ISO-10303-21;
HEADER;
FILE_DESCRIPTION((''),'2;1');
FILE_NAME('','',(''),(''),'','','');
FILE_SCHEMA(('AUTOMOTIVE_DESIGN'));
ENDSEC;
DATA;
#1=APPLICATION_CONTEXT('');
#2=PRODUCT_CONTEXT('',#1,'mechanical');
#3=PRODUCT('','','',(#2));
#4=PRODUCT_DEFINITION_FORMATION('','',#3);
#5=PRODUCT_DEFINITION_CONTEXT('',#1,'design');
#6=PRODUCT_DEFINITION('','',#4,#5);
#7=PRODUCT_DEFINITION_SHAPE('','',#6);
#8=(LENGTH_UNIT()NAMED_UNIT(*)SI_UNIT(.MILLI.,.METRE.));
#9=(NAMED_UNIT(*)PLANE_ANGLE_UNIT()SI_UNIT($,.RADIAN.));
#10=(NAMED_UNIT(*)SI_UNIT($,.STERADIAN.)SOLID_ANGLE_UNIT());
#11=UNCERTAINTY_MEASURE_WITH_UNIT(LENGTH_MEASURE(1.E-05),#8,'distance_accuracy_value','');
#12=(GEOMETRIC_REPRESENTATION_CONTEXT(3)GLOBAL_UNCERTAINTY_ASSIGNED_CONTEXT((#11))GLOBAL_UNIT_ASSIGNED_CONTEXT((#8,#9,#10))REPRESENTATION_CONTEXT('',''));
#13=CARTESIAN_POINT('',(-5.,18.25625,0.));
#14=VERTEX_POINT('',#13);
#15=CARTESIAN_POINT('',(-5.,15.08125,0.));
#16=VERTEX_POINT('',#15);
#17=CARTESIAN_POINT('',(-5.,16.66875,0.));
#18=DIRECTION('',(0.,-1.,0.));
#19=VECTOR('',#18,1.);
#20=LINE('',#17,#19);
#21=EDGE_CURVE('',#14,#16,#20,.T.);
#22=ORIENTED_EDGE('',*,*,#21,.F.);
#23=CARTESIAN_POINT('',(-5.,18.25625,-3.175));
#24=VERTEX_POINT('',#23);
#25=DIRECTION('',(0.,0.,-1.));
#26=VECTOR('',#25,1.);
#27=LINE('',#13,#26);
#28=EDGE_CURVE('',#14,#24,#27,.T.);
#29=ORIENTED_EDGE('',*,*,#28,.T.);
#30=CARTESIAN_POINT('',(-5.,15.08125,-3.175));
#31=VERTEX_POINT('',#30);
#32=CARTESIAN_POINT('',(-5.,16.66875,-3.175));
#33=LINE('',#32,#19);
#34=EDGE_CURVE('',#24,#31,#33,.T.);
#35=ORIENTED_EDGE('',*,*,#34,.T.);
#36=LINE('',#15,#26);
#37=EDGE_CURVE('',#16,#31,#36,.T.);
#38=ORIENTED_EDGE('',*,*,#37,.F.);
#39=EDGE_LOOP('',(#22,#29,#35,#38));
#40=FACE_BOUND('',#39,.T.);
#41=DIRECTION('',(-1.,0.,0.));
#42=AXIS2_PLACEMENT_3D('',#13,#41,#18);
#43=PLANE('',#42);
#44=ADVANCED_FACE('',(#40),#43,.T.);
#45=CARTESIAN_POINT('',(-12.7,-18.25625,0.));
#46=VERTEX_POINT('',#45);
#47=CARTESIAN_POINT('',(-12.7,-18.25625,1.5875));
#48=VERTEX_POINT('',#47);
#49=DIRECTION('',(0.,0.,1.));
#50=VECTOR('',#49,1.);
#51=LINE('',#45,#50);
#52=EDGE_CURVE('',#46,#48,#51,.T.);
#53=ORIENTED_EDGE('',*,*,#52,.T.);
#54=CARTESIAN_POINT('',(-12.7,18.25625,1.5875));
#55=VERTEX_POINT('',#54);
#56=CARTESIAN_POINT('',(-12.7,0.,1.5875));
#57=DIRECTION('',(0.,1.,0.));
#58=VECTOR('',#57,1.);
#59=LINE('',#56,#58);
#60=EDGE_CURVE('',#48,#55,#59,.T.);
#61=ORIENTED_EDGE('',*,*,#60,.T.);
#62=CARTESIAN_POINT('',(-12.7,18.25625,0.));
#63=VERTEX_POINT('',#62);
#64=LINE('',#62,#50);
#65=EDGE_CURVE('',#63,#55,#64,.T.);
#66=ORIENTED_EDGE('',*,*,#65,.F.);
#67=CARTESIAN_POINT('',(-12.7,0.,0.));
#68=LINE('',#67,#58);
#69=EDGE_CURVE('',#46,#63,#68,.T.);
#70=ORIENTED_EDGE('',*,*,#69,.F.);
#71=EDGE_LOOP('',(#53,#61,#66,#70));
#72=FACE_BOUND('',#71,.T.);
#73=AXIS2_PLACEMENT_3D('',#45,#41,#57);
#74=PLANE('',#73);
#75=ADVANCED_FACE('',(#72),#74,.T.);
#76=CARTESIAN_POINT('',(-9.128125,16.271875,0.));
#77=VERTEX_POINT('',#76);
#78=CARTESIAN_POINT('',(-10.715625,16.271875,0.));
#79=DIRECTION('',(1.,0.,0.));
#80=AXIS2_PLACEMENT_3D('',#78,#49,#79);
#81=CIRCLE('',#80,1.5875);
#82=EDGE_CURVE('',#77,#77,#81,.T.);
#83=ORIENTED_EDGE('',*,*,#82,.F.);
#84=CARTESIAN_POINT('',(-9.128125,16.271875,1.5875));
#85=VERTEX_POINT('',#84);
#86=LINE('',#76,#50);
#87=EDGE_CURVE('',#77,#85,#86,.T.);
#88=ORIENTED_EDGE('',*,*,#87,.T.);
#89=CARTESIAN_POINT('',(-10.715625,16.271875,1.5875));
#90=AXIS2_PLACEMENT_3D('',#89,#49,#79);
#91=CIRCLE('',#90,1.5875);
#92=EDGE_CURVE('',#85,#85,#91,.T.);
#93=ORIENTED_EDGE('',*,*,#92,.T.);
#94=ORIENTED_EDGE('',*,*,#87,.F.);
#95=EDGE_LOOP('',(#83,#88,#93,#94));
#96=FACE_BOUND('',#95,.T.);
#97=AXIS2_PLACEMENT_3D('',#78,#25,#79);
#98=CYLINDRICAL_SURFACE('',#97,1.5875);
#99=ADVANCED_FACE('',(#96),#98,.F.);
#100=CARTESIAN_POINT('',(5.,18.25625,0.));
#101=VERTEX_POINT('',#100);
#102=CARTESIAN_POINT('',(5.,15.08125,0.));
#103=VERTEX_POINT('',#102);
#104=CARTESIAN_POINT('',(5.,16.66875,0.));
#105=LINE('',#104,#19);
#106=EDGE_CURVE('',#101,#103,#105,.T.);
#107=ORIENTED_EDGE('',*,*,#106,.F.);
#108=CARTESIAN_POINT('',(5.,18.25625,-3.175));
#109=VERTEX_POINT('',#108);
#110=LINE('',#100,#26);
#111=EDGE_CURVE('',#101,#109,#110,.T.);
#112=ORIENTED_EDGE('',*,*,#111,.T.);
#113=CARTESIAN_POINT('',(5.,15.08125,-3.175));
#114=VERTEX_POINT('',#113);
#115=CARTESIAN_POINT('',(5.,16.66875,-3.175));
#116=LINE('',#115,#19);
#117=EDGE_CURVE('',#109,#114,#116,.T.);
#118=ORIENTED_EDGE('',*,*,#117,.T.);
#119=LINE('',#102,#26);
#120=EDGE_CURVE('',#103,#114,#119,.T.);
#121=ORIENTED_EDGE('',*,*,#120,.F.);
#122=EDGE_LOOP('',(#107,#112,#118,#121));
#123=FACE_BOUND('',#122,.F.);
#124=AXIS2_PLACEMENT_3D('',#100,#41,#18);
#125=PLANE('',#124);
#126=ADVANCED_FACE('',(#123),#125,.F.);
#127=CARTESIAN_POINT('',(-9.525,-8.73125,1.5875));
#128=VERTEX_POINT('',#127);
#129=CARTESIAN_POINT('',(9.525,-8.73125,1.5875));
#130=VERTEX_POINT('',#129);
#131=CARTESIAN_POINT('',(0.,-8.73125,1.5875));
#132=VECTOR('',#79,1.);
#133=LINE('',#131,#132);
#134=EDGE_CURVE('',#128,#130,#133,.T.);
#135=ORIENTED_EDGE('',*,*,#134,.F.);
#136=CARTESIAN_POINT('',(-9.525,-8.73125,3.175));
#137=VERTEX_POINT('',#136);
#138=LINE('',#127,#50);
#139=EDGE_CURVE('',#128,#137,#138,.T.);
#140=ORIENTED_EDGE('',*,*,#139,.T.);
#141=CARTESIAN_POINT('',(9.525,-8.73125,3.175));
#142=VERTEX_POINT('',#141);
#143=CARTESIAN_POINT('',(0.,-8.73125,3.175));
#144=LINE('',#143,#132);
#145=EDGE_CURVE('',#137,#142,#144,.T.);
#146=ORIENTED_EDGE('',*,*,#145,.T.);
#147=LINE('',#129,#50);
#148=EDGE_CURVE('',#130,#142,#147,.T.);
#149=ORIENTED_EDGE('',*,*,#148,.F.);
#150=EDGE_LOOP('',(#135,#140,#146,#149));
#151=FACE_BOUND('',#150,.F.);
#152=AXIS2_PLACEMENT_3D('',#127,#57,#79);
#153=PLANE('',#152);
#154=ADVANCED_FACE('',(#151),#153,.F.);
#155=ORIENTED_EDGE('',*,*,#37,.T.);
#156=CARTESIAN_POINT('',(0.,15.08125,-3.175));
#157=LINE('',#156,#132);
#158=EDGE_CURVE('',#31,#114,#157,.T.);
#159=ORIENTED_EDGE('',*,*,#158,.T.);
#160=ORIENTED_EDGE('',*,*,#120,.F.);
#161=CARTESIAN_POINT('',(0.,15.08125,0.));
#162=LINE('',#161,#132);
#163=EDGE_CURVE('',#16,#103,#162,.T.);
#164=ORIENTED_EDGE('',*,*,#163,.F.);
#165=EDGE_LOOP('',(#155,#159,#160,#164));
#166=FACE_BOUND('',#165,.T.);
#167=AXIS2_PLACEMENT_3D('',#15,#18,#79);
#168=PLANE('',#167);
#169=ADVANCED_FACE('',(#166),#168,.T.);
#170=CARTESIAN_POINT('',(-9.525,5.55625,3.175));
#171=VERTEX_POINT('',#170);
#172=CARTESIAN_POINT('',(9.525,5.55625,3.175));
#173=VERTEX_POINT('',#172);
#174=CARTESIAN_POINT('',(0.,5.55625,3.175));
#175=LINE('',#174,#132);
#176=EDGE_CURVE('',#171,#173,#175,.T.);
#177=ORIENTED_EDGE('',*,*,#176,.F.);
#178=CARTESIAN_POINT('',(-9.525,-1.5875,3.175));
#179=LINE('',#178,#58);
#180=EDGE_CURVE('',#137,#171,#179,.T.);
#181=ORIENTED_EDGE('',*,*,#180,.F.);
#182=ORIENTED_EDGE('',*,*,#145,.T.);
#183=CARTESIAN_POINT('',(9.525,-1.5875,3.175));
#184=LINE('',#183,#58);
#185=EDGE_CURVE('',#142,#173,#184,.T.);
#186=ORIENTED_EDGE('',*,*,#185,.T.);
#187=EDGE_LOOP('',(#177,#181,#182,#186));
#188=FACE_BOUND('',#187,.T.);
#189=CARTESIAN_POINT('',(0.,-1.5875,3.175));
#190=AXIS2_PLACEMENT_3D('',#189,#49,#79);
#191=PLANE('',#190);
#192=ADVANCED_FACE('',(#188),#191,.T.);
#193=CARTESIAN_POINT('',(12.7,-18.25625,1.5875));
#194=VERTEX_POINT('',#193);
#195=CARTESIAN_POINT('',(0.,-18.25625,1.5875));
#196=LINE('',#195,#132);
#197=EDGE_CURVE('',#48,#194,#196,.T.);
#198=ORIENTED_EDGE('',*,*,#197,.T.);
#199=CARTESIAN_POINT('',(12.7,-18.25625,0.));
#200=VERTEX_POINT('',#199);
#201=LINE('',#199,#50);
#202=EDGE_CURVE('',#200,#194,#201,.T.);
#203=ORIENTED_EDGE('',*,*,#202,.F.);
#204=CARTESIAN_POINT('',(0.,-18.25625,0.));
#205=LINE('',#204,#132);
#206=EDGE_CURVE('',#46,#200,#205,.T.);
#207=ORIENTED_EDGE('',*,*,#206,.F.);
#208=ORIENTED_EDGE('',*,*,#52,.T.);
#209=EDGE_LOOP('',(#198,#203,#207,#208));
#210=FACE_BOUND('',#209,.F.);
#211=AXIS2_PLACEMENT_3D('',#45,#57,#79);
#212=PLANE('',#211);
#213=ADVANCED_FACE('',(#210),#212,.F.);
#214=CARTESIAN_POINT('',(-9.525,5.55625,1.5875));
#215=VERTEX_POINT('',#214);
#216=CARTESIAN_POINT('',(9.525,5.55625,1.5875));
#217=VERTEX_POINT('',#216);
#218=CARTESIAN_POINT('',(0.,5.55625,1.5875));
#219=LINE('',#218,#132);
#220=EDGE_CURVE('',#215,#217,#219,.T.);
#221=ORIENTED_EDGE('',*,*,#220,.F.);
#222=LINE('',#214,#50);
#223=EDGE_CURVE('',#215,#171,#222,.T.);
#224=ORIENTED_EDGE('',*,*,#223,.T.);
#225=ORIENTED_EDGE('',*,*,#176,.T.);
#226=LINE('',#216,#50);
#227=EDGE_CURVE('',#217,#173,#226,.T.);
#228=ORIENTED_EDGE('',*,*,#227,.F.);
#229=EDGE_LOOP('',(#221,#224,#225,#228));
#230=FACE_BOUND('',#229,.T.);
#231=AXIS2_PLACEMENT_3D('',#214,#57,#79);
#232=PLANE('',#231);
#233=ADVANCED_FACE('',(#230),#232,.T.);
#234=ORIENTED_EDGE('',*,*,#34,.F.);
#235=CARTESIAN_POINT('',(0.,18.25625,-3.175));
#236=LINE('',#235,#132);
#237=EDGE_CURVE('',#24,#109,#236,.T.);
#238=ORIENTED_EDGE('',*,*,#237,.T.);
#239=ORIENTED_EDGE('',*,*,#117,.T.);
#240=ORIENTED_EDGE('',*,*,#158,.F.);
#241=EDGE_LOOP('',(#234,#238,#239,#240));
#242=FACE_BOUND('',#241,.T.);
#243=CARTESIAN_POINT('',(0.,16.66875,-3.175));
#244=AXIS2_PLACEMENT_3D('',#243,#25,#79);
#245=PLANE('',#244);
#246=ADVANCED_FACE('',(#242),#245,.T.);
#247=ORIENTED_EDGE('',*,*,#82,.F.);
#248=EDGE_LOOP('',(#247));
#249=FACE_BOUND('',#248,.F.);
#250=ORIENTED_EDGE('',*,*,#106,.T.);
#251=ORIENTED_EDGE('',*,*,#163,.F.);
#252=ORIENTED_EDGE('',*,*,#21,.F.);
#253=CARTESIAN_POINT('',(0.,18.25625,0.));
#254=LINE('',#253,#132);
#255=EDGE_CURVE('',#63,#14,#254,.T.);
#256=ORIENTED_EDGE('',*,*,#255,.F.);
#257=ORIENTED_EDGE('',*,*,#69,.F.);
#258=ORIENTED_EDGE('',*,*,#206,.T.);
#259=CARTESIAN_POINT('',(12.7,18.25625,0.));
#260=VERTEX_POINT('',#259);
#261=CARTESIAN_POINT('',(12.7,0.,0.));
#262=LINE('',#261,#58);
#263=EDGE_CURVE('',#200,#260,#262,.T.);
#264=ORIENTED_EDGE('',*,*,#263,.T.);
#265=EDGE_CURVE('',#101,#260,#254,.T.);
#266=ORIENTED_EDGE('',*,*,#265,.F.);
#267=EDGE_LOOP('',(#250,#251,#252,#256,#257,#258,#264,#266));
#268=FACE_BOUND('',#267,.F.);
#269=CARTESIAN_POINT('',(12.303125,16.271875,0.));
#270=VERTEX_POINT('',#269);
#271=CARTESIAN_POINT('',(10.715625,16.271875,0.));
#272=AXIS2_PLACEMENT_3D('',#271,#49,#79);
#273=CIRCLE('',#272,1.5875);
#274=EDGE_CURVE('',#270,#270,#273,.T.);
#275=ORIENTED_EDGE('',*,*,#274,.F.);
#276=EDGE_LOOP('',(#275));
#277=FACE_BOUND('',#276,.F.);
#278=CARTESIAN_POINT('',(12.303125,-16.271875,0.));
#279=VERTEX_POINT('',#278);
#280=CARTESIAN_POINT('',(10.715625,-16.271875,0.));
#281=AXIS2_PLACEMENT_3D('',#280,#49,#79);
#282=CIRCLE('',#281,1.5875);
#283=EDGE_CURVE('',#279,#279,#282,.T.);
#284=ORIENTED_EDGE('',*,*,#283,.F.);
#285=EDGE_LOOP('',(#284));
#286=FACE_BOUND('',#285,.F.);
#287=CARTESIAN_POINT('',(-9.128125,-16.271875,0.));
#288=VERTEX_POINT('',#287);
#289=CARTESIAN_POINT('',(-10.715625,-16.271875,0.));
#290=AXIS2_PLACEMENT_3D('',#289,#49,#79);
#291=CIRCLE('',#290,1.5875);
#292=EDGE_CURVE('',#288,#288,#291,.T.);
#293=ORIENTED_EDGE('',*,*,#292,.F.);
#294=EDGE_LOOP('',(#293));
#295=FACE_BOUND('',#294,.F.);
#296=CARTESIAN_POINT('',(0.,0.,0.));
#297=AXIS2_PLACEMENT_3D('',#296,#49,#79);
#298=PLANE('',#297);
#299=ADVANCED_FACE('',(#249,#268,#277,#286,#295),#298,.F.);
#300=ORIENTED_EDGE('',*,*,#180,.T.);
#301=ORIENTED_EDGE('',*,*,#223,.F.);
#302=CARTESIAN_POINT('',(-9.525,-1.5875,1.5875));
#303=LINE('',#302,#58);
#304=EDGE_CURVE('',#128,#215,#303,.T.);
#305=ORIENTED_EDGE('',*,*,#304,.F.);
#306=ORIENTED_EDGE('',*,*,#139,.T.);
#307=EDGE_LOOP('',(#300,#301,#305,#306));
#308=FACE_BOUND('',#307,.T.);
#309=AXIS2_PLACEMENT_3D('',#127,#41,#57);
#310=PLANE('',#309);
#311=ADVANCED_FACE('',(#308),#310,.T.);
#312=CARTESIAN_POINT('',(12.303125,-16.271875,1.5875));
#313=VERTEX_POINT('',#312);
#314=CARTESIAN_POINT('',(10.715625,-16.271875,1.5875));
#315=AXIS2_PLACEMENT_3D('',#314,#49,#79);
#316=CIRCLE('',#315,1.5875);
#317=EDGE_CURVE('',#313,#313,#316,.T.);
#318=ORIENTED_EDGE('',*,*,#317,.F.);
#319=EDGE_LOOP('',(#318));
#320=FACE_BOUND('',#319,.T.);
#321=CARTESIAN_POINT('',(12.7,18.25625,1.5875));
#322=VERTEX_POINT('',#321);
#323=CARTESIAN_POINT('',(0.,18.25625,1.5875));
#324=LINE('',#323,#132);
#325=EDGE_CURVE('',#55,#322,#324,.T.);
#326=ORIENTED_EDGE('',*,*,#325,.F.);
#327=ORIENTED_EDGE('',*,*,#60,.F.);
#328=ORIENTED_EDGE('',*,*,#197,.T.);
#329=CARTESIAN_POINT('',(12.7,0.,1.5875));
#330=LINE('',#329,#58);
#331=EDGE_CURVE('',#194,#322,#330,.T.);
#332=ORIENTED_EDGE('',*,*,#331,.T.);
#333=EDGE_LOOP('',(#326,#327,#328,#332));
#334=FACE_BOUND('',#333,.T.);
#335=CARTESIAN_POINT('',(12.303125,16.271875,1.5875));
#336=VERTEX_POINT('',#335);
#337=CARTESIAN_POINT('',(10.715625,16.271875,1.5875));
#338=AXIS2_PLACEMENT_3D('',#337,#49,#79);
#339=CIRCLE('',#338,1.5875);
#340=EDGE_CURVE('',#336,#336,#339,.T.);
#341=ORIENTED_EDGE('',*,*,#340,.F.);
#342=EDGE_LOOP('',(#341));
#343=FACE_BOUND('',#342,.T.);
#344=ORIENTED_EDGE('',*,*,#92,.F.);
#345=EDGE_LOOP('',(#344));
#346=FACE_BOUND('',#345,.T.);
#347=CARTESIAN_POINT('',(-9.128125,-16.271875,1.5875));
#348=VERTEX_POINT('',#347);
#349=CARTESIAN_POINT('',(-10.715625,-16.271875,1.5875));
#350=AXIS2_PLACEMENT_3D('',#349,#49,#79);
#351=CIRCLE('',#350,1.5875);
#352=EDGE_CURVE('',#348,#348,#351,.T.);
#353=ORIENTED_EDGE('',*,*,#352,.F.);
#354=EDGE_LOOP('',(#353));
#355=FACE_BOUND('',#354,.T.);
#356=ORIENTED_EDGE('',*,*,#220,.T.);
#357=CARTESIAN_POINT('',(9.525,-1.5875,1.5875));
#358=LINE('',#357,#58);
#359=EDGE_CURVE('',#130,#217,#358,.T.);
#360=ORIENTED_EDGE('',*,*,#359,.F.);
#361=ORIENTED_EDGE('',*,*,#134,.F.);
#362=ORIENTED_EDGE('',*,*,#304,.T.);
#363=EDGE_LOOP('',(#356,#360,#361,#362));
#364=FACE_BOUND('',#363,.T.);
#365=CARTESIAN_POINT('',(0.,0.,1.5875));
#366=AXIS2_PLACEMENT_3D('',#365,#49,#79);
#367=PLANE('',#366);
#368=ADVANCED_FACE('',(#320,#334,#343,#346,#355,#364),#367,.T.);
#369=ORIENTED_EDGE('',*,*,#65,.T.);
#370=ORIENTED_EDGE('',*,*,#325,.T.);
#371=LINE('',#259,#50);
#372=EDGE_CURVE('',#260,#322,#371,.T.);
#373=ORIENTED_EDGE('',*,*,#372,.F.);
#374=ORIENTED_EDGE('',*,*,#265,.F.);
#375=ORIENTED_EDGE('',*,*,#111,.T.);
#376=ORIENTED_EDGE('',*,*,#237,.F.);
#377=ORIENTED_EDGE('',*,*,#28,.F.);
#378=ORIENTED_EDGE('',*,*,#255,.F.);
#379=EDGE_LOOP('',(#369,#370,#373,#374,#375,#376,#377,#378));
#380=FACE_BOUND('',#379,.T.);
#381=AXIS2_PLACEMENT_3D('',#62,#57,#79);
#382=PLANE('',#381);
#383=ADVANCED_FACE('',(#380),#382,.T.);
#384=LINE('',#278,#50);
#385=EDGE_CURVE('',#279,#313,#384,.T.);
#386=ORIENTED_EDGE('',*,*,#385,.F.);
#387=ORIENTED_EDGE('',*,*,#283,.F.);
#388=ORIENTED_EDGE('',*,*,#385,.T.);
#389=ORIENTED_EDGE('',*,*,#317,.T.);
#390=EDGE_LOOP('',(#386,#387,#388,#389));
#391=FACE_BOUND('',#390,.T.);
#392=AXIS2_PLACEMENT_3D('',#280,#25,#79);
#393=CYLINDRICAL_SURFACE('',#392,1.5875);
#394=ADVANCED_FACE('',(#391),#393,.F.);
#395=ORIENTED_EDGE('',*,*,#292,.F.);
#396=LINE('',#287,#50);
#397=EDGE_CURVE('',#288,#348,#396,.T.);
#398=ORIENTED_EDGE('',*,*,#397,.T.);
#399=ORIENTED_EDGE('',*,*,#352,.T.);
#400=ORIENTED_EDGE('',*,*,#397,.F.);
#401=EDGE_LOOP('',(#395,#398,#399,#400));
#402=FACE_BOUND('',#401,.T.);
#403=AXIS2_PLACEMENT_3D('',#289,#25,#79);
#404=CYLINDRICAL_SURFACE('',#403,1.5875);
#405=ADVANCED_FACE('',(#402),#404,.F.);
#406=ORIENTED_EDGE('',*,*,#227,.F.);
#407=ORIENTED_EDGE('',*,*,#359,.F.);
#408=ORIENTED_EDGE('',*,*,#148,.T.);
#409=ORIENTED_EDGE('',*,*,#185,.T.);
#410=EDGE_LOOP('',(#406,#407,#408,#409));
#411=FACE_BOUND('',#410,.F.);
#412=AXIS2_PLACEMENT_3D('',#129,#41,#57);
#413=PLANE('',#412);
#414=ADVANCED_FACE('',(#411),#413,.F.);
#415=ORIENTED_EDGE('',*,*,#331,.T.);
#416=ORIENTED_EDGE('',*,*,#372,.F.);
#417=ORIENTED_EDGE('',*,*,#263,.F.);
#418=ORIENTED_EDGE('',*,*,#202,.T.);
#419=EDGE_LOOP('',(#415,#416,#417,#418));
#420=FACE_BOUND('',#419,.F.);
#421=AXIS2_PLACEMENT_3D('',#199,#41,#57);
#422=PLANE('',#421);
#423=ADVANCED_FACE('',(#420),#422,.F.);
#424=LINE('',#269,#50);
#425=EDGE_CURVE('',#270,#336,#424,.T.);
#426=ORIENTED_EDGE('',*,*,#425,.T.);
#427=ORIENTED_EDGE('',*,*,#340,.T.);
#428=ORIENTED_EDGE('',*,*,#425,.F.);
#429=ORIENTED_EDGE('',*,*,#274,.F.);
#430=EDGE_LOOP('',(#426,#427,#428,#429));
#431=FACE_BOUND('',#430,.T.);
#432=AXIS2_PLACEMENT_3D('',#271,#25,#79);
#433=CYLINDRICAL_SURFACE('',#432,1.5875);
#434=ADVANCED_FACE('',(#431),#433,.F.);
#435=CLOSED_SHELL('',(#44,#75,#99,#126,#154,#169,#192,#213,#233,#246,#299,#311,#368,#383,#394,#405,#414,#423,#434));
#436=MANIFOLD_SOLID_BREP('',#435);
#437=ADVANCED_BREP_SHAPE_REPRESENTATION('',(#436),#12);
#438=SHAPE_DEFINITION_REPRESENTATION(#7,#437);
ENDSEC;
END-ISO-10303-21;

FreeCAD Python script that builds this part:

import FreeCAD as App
import Part
import Sketcher
Q = App.Units.Quantity

doc = App.newDocument("Part")
body = doc.addObject("PartDesign::Body", "Body")

# Sketch on XY plane
sketch1 = body.newObject("Sketcher::SketchObject", "Sketch")
sketch1.AttachmentSupport = (doc.getObject("XY_Plane"), [""])
sketch1.MapMode = "FlatFace"
sketch1.addGeometry([
    Part.LineSegment(App.Vector(-12.7, 18.25625, 0), App.Vector(-12.7, -18.25625, 0)),  # 0
    Part.LineSegment(App.Vector(-12.7, -18.25625, 0), App.Vector(12.7, -18.25625, 0)),  # 1
    Part.LineSegment(App.Vector(12.7, -18.25625, 0), App.Vector(12.7, 18.25625, 0)),  # 2
    Part.LineSegment(App.Vector(12.7, 18.25625, 0), App.Vector(-12.7, 18.25625, 0)),  # 3
    Part.Circle(App.Vector(-10.715625, -16.271875, 0), App.Vector(0, 0, 1), 1.5875),  # 4
    Part.Circle(App.Vector(10.715625, -16.271875, 0), App.Vector(0, 0, 1), 1.5875),  # 5
    Part.Circle(App.Vector(-10.715625, 16.271875, 0), App.Vector(0, 0, 1), 1.5875),  # 6
    Part.Circle(App.Vector(10.715625, 16.271875, 0), App.Vector(0, 0, 1), 1.5875),  # 7
], False)
sketch1.addConstraint([
    Sketcher.Constraint("Coincident", 0, 2, 1, 1),
    Sketcher.Constraint("Coincident", 1, 2, 2, 1),
    Sketcher.Constraint("Coincident", 2, 2, 3, 1),
    Sketcher.Constraint("Coincident", 3, 2, 0, 1),
    Sketcher.Constraint("Vertical", 0),
    Sketcher.Constraint("Horizontal", 1),
    Sketcher.Constraint("Vertical", 2),
    Sketcher.Constraint("Horizontal", 3),
    Sketcher.Constraint("Equal", 4, 5),
    Sketcher.Constraint("Equal", 5, 6),
    Sketcher.Constraint("Equal", 6, 7),
    Sketcher.Constraint("Symmetric", 5, 3, 6, 3, -1, 1),
    Sketcher.Constraint("Symmetric", 4, 3, 7, 3, -1, 1),
    Sketcher.Constraint("Symmetric", 0, 2, 2, 2, -1, 1),
    Sketcher.Constraint("Symmetric", 4, 3, 5, 3, -2),
    Sketcher.Constraint("DistanceX", 1, 1, 1, 2, Q("1 in")),
    Sketcher.Constraint("Diameter", 4, Q("0.125 in")),
    Sketcher.Constraint("DistanceY", 0, 2, 0, 1, Q("1.4375 in")),
    Sketcher.Constraint("DistanceX", 4, 3, -1, 1, Q("0.421875 in")),
    Sketcher.Constraint("DistanceY", 4, 3, -1, 1, Q("0.640625 in")),
])
pad1 = body.newObject("PartDesign::Pad", "Pad")
pad1.Profile = sketch1
pad1.Length = Q("0.0625 in")

# Sketch on XY plane
sketch2 = body.newObject("Sketcher::SketchObject", "Sketch001")
sketch2.AttachmentSupport = (doc.getObject("XY_Plane"), [""])
sketch2.MapMode = "FlatFace"
sketch2.AttachmentOffset = App.Placement(App.Vector(0, 0, 0.0625 * 25.4), App.Rotation())
sketch2.addGeometry([
    Part.LineSegment(App.Vector(-9.525, 5.55625, 0), App.Vector(-9.525, -8.73125, 0)),
    Part.LineSegment(App.Vector(-9.525, -8.73125, 0), App.Vector(9.525, -8.73125, 0)),
    Part.LineSegment(App.Vector(9.525, -8.73125, 0), App.Vector(9.525, 5.55625, 0)),
    Part.LineSegment(App.Vector(9.525, 5.55625, 0), App.Vector(-9.525, 5.55625, 0)),
], False)
sketch2.addConstraint([
    Sketcher.Constraint("Coincident", 0, 2, 1, 1),
    Sketcher.Constraint("Coincident", 1, 2, 2, 1),
    Sketcher.Constraint("Coincident", 2, 2, 3, 1),
    Sketcher.Constraint("Coincident", 3, 2, 0, 1),
    Sketcher.Constraint("Vertical", 0),
    Sketcher.Constraint("Horizontal", 1),
    Sketcher.Constraint("Vertical", 2),
    Sketcher.Constraint("Horizontal", 3),
    Sketcher.Constraint("DistanceX", 1, 1, 1, 2, Q("0.75 in")),
    Sketcher.Constraint("DistanceY", 0, 2, 0, 1, Q("0.5625 in")),
    Sketcher.Constraint("DistanceX", 0, 2, -1, 1, Q("0.375 in")),
    Sketcher.Constraint("DistanceY", 0, 2, -1, 1, Q("0.34375 in")),
])
pad2 = body.newObject("PartDesign::Pad", "Pad001")
pad2.Profile = sketch2
pad2.Length = Q("0.0625 in")

# Sketch on XY plane
sketch3 = body.newObject("Sketcher::SketchObject", "Sketch002")
sketch3.AttachmentSupport = (doc.getObject("XY_Plane"), [""])
sketch3.MapMode = "FlatFace"
sketch3.addGeometry([
    Part.LineSegment(App.Vector(-5, 15.08125, 0), App.Vector(-5, 18.25625, 0)),
    Part.LineSegment(App.Vector(-5, 18.25625, 0), App.Vector(5, 18.25625, 0)),
    Part.LineSegment(App.Vector(5, 18.25625, 0), App.Vector(5, 15.08125, 0)),
    Part.LineSegment(App.Vector(5, 15.08125, 0), App.Vector(-5, 15.08125, 0)),
], False)
sketch3.addConstraint([
    Sketcher.Constraint("Coincident", 0, 2, 1, 1),
    Sketcher.Constraint("Coincident", 1, 2, 2, 1),
    Sketcher.Constraint("Coincident", 2, 2, 3, 1),
    Sketcher.Constraint("Coincident", 3, 2, 0, 1),
    Sketcher.Constraint("Vertical", 0),
    Sketcher.Constraint("Horizontal", 1),
    Sketcher.Constraint("Vertical", 2),
    Sketcher.Constraint("Horizontal", 3),
    Sketcher.Constraint("DistanceY", 0, 1, 0, 2, Q("0.125 in")),
    Sketcher.Constraint("DistanceY", -1, 1, 0, 2, Q("0.71875 in")),
    Sketcher.Constraint("DistanceX", 1, 1, 1, 2, 10.0),
    Sketcher.Constraint("DistanceX", 0, 2, -1, 1, 5.0),
])
pad3 = body.newObject("PartDesign::Pad", "Pad002")
pad3.Profile = sketch3
pad3.Length = Q("0.125 in")
pad3.Reversed = True

doc.recompute()
